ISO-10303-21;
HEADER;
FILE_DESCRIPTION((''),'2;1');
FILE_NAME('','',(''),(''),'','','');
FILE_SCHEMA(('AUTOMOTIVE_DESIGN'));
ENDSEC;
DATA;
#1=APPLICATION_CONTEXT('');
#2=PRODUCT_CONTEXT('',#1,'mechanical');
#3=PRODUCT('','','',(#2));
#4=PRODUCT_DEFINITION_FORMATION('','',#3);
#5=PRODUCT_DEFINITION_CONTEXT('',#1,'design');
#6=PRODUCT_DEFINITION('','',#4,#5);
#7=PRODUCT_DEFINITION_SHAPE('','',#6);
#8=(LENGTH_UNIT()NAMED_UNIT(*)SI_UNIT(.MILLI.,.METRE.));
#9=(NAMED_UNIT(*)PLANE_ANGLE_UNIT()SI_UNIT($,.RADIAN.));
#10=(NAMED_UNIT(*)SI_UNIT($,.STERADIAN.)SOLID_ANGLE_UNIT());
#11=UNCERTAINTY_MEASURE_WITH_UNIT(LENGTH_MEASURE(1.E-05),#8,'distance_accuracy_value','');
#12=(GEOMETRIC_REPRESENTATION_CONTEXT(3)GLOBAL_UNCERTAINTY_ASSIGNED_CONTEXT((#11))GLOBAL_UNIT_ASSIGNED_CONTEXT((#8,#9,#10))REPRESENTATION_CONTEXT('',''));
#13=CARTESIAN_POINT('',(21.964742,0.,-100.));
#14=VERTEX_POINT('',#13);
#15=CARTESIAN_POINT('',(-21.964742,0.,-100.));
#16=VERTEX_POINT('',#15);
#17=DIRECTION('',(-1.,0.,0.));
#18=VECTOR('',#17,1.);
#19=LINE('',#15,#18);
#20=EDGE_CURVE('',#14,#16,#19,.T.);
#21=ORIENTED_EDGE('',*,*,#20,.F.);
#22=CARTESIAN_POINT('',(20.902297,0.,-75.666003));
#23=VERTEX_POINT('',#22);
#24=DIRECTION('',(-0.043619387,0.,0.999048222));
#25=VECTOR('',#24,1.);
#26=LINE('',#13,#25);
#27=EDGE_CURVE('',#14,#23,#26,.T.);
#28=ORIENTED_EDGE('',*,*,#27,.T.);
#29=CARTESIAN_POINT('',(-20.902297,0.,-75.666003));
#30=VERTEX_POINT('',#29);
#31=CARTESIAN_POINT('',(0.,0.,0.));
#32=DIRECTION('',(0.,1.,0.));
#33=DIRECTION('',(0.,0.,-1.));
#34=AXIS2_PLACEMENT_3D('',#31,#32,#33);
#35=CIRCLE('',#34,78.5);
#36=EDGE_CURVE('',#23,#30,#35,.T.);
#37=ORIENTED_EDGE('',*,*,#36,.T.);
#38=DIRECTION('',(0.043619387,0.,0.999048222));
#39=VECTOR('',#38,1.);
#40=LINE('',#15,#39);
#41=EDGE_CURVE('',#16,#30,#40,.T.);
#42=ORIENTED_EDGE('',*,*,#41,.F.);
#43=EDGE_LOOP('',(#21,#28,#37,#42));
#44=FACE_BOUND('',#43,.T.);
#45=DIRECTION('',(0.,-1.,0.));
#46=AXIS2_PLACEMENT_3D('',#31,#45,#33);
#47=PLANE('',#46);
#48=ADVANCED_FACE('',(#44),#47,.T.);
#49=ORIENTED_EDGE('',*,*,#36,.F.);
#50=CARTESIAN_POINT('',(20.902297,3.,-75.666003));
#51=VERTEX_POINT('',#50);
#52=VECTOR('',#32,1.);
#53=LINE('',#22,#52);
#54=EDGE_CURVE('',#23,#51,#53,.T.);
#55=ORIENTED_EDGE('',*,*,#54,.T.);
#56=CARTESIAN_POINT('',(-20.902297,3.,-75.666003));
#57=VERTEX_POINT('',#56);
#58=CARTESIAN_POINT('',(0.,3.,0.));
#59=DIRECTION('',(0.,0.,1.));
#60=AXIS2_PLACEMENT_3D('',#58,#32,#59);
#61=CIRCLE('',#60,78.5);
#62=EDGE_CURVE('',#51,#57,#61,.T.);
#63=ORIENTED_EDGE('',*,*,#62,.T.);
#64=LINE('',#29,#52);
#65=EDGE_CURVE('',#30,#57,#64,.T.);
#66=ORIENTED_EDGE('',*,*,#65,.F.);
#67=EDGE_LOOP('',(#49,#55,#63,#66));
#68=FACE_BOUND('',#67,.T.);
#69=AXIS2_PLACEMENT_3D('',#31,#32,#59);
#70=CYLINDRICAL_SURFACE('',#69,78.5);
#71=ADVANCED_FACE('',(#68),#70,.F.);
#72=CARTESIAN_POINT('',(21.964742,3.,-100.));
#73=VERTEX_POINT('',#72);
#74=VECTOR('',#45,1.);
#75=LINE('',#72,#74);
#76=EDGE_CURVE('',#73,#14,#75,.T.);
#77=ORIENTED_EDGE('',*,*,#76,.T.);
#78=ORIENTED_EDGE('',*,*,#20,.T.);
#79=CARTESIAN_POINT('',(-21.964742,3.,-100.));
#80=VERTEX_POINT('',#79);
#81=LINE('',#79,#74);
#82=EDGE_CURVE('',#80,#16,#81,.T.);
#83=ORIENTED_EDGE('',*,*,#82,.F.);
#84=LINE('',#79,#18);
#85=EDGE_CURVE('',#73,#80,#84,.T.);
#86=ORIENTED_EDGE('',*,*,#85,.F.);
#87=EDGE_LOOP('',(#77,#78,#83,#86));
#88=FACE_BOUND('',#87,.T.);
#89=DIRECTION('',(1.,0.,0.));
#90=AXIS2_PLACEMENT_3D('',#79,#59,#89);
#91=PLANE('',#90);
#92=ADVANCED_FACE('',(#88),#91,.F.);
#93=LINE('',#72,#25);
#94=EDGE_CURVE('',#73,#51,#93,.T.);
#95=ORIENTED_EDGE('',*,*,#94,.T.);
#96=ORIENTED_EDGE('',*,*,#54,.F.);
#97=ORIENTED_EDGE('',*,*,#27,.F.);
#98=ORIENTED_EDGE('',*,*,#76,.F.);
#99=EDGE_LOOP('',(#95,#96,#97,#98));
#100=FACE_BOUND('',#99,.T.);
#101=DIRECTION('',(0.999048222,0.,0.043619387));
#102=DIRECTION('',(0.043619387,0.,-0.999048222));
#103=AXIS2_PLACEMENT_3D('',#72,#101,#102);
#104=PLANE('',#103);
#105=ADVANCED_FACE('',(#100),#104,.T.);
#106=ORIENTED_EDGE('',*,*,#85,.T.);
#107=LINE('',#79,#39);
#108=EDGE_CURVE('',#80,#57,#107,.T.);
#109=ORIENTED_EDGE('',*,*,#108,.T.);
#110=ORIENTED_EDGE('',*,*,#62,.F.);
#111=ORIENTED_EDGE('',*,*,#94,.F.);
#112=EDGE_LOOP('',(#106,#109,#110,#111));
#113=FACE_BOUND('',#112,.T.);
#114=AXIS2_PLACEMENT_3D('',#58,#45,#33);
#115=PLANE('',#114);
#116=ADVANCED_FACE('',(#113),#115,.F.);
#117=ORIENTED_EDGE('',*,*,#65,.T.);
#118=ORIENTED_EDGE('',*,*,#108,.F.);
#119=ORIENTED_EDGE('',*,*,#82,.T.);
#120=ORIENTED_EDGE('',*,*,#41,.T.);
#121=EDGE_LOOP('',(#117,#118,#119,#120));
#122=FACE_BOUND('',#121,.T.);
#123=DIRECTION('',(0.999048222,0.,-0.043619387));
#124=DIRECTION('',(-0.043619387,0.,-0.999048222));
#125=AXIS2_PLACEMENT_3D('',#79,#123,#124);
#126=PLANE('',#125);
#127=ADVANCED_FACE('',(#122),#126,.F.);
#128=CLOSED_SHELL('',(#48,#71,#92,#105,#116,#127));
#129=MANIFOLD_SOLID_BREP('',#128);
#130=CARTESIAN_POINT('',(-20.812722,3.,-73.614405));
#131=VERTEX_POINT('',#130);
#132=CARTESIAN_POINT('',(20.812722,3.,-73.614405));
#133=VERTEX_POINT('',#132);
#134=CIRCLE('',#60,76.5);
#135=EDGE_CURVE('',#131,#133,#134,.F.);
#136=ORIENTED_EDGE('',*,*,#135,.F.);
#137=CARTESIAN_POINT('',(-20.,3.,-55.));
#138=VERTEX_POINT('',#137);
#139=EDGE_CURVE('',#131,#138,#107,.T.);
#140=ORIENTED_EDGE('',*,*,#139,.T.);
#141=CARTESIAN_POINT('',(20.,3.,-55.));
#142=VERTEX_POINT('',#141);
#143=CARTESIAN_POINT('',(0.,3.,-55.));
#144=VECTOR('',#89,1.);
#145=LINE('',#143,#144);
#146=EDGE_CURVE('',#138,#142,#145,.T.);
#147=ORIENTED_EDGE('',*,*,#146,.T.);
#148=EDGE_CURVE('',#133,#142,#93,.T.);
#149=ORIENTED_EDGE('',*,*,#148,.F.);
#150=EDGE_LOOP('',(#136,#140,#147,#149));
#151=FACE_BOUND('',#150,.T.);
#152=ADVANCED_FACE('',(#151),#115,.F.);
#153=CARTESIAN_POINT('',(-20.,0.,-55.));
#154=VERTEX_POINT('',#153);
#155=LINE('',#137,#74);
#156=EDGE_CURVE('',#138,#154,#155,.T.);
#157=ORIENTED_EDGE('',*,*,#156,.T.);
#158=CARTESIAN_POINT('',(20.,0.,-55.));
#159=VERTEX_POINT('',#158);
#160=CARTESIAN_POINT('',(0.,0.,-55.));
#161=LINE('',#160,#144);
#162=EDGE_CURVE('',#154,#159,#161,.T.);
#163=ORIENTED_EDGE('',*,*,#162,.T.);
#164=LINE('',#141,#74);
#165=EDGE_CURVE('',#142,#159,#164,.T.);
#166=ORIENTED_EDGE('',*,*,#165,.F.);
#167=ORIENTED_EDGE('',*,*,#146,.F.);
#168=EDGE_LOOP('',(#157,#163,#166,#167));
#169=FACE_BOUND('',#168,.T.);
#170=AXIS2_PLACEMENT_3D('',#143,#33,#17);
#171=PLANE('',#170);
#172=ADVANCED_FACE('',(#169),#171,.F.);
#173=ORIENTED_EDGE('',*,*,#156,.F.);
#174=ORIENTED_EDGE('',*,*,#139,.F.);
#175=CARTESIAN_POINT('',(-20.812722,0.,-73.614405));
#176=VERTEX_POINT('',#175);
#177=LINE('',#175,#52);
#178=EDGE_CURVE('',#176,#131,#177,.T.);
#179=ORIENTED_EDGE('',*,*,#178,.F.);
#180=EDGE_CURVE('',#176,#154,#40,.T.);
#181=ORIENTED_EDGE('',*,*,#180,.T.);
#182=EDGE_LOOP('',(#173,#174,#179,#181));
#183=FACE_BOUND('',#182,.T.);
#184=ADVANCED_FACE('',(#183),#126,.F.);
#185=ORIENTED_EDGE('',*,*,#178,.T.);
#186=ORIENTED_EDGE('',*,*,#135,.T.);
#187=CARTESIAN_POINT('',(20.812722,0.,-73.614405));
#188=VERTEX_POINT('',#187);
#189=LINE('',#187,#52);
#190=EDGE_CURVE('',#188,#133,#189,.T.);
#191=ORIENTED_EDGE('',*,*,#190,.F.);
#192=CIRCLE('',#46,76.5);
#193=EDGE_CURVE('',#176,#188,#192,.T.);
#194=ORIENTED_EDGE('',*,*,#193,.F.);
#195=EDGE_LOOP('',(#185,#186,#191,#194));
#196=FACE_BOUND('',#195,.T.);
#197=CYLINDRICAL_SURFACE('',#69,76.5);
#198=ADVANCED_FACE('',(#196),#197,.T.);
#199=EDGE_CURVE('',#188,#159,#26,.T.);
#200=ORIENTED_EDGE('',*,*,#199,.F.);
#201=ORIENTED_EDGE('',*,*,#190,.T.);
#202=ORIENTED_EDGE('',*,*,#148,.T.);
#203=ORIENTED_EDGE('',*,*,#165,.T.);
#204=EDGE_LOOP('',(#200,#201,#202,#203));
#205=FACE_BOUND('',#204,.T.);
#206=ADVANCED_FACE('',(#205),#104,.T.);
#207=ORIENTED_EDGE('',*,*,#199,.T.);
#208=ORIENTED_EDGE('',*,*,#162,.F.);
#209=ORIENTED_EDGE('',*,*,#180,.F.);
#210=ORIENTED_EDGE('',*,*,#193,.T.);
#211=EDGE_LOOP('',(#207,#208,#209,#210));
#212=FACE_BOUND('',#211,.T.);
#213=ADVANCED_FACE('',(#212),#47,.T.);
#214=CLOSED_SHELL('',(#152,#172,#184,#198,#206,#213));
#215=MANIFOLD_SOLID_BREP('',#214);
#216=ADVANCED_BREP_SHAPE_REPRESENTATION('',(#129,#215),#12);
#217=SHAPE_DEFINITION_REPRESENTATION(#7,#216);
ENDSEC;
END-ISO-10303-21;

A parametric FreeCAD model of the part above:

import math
import FreeCAD as App
import Part
import Sketcher
Q = App.Units.Quantity


def add_polygon(sketch, points):
    """Adds a closed chain of lines whose ends are joined by coincident constraints."""
    first, n = sketch.GeometryCount, len(points)
    for a, b in zip(points, points[1:] + points[:1]):
        sketch.addGeometry(Part.LineSegment(App.Vector(*a, 0), App.Vector(*b, 0)), False)
    for i in range(n):
        sketch.addConstraint(Sketcher.Constraint("Coincident", first + i, 2, first + (i + 1) % n, 1))

doc = App.newDocument("Part")
params = doc.addObject("Spreadsheet::Sheet", "Params")
for row, (alias, value) in enumerate([
    ("sketch1_width", "20 mm"),
    ("sketch1_height", "45 mm"),
    ("pad1_length", "3 mm"),
    ("sketch2_radius", "76.5 mm"),
    ("sketch2_radius2", "78.5 mm"),
], start=1):
    params.set(f"A{row}", alias)
    params.set(f"B{row}", "=" + value)
    params.setAlias(f"B{row}", alias)

body = doc.addObject("PartDesign::Body", "Body")
body.AllowCompound = True

# Sketch on XZ plane
sketch1 = body.newObject("Sketcher::SketchObject", "Sketch")
sketch1.AttachmentSupport = (doc.getObject("XZ_Plane"), [""])
sketch1.MapMode = "FlatFace"
add_polygon(sketch1, [(-21.964742, -100), (-20, -55), (0, -55), (0, -100)])  # lines 0-3
sketch1.addConstraint(Sketcher.Constraint("Horizontal", 1))
sketch1.addConstraint(Sketcher.Constraint("Vertical", 2))
sketch1.addConstraint(Sketcher.Constraint("Horizontal", 3))
sketch1.addConstraint(Sketcher.Constraint("PointOnObject", 1, 2, -2))
sketch1.addConstraint(Sketcher.Constraint("DistanceX", 1, 1, 1, 2, 20.0))
sketch1.addConstraint(Sketcher.Constraint("DistanceY", 2, 2, 2, 1, 45.0))
sketch1.addConstraint(Sketcher.Constraint("DistanceY", 0, 2, -1, 1, 55.0))
sketch1.addConstraint(Sketcher.Constraint("Angle", 0, Q("87.5 deg")))
sketch1.setExpression("Constraints[8]", "Params.sketch1_width")
sketch1.setExpression("Constraints[9]", "Params.sketch1_height")
pad1 = body.newObject("PartDesign::Pad", "Pad")
pad1.Profile = sketch1
pad1.setExpression("Length", "Params.pad1_length")
pad1.Reversed = True
doc.recompute()

mirrored = body.newObject("PartDesign::Mirrored", "Mirrored")
mirrored.Originals = [pad1]
mirrored.MirrorPlane = (doc.getObject("YZ_Plane"), [""])
body.Tip = mirrored

# Sketch on XZ plane
sketch2 = body.newObject("Sketcher::SketchObject", "Sketch001")
sketch2.AttachmentSupport = (doc.getObject("XZ_Plane"), [""])
sketch2.MapMode = "FlatFace"
sketch2.AttachmentOffset = App.Placement(App.Vector(0, 0, -3), App.Rotation())
sketch2.addGeometry(Part.LineSegment(App.Vector(-20.902297, -75.666003, 0), App.Vector(-20.812722, -73.614405, 0)), False)
sketch2.addGeometry(Part.ArcOfCircle(Part.Circle(App.Vector(0, 0, 0), App.Vector(0, 0, 1), 76.5), math.radians(-105.786989), math.radians(-74.213011)), False)
sketch2.addGeometry(Part.LineSegment(App.Vector(20.812722, -73.614405, 0), App.Vector(20.902297, -75.666003, 0)), False)
sketch2.addGeometry(Part.ArcOfCircle(Part.Circle(App.Vector(0, 0, 0), App.Vector(0, 0, 1), 78.5), math.radians(-105.442507), math.radians(-74.557493)), False)
sketch2.addConstraint(Sketcher.Constraint("Coincident", 0, 2, 1, 1))
sketch2.addConstraint(Sketcher.Constraint("Coincident", 1, 2, 2, 1))
sketch2.addConstraint(Sketcher.Constraint("Coincident", 2, 2, 3, 2))
sketch2.addConstraint(Sketcher.Constraint("Coincident", 3, 1, 0, 1))
sketch2.addConstraint(Sketcher.Constraint("Coincident", 1, 3, -1, 1))
sketch2.addConstraint(Sketcher.Constraint("Coincident", 3, 3, -1, 1))
sketch2.addConstraint(Sketcher.Constraint("Horizontal", 0, 2, 1, 2))
sketch2.addConstraint(Sketcher.Constraint("Horizontal", 2, 2, 3, 1))
sketch2.addConstraint(Sketcher.Constraint("Radius", 1, 76.5))
sketch2.addConstraint(Sketcher.Constraint("Radius", 3, 78.5))
sketch2.addConstraint(Sketcher.Constraint("Angle", 0, Q("87.5 deg")))
sketch2.addConstraint(Sketcher.Constraint("DistanceY", 2, 2, 0, 2, 2.051598))
sketch2.setExpression("Constraints[8]", "Params.sketch2_radius")
sketch2.setExpression("Constraints[9]", "Params.sketch2_radius2")
pocket1 = body.newObject("PartDesign::Pocket", "Pocket")
pocket1.Profile = sketch2
pocket1.Type = "ThroughAll"
pocket1.Midplane = True

doc.recompute()
